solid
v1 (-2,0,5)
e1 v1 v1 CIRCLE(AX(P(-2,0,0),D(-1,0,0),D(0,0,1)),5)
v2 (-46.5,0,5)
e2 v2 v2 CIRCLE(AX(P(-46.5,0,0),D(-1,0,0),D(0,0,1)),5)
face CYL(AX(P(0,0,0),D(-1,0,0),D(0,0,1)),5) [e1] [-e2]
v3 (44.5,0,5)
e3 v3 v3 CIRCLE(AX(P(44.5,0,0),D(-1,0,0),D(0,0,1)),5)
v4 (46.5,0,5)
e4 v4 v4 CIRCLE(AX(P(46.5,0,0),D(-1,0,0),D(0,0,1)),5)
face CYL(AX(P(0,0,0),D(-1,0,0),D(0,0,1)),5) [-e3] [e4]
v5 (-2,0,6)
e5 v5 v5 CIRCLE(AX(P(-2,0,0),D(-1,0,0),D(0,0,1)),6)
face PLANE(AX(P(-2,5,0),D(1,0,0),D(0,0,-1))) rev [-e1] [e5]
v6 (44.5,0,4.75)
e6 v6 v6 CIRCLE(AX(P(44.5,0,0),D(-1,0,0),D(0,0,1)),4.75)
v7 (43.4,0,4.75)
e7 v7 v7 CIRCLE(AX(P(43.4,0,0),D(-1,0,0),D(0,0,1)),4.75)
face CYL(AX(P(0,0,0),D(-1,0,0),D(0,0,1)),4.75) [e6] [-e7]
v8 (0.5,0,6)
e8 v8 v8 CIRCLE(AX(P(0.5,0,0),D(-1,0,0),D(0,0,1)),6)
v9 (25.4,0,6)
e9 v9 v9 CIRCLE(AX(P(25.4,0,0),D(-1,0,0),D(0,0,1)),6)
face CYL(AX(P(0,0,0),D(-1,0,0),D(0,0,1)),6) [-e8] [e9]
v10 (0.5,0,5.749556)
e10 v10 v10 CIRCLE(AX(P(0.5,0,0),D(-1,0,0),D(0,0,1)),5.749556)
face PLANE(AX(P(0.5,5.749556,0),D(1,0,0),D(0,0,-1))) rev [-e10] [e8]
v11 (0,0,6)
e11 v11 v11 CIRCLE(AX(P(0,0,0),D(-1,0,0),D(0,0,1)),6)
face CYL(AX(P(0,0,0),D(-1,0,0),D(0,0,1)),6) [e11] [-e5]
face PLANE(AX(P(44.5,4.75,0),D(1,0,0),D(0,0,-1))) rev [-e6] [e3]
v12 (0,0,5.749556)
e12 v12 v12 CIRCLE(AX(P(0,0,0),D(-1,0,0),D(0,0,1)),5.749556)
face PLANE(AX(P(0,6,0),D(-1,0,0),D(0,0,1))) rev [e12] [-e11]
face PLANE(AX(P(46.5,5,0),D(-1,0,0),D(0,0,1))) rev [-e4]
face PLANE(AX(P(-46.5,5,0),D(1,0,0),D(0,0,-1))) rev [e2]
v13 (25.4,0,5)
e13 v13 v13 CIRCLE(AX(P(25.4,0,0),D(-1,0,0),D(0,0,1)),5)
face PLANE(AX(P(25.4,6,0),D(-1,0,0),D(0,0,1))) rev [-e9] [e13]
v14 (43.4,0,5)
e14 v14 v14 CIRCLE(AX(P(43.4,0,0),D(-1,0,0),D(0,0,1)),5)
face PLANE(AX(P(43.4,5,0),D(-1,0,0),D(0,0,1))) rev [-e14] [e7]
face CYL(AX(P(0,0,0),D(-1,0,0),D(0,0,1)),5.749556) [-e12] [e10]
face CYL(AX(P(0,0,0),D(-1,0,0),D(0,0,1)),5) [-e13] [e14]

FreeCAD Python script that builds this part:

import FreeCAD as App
import Part
import Sketcher
from FreeCAD import Vector
Q = App.Units.Quantity


def add_polygon(sketch, points):
    """Adds a closed chain of lines whose ends are joined by coincident constraints."""
    first, n = sketch.GeometryCount, len(points)
    for a, b in zip(points, points[1:] + points[:1]):
        sketch.addGeometry(Part.LineSegment(App.Vector(*a, 0), App.Vector(*b, 0)), False)
    for i in range(n):
        sketch.addConstraint(Sketcher.Constraint("Coincident", first + i, 2, first + (i + 1) % n, 1))

doc = App.newDocument("Part")
body = doc.addObject("PartDesign::Body", "Body")

# Sketch on XY plane
sketch1 = body.newObject("Sketcher::SketchObject", "Sketch")
sketch1.AttachmentSupport = (doc.getObject("XY_Plane"), [""])
sketch1.MapMode = "FlatFace"
add_polygon(sketch1, [(-2, 6), (-2, 5), (-46.5, 5), (-46.5, 0), (46.5, 0), (46.5, 5), (44.5, 5), (44.5, 4.75), (43.4, 4.75), (43.4, 5), (25.4, 5), (25.4, 6), (0.5, 6), (0.5, 5.75), (0, 5.75), (0, 6)])  # lines 0-15
sketch1.addConstraint(Sketcher.Constraint("Vertical", 0))
sketch1.addConstraint(Sketcher.Constraint("Horizontal", 1))
sketch1.addConstraint(Sketcher.Constraint("Vertical", 2))
sketch1.addConstraint(Sketcher.Constraint("Horizontal", 3))
sketch1.addConstraint(Sketcher.Constraint("Vertical", 4))
sketch1.addConstraint(Sketcher.Constraint("Horizontal", 5))
sketch1.addConstraint(Sketcher.Constraint("Vertical", 6))
sketch1.addConstraint(Sketcher.Constraint("Horizontal", 7))
sketch1.addConstraint(Sketcher.Constraint("Vertical", 8))
sketch1.addConstraint(Sketcher.Constraint("Horizontal", 9))
sketch1.addConstraint(Sketcher.Constraint("Vertical", 10))
sketch1.addConstraint(Sketcher.Constraint("Horizontal", 11))
sketch1.addConstraint(Sketcher.Constraint("Vertical", 12))
sketch1.addConstraint(Sketcher.Constraint("Horizontal", 13))
sketch1.addConstraint(Sketcher.Constraint("Vertical", 14))
sketch1.addConstraint(Sketcher.Constraint("Horizontal", 15))
sketch1.addConstraint(Sketcher.Constraint("Symmetric", 2, 2, 3, 2, -1, 1))
sketch1.addConstraint(Sketcher.Constraint("PointOnObject", 13, 2, -2))
sketch1.addConstraint(Sketcher.Constraint("Horizontal", 1, 2, 4, 2))
sketch1.addConstraint(Sketcher.Constraint("Horizontal", 5, 2, 8, 2))
sketch1.addConstraint(Sketcher.Constraint("Horizontal", 11, 2, 14, 2))
sketch1.addConstraint(Sketcher.Constraint("Equal", 5, 15))
sketch1.addConstraint(Sketcher.Constraint("DistanceX", 3, 1, 3, 2, Q("93 mm")))
sketch1.addConstraint(Sketcher.Constraint("DistanceX", 5, 2, 5, 1, Q("2 mm")))
sketch1.addConstraint(Sketcher.Constraint("DistanceX", 9, 2, 9, 1, Q("18 mm")))
sketch1.addConstraint(Sketcher.Constraint("DistanceY", 0, 2, 0, 1, Q("1 mm")))
sketch1.addConstraint(Sketcher.Constraint("DistanceY", 2, 2, 2, 1, Q("5 mm")))
sketch1.addConstraint(Sketcher.Constraint("DistanceX", 7, 2, 7, 1, Q("1.1 mm")))
sketch1.addConstraint(Sketcher.Constraint("DistanceX", 11, 2, 11, 1, Q("24.9 mm")))
sketch1.addConstraint(Sketcher.Constraint("DistanceY", 6, 2, 6, 1, Q("0.25 mm")))
sketch1.addConstraint(Sketcher.Constraint("DistanceY", 12, 2, 12, 1, Q("0.250444 mm")))
revolution = body.newObject("PartDesign::Revolution", "Revolution")
revolution.Profile = sketch1
revolution.ReferenceAxis = (sketch1, ["H_Axis"])
revolution.Angle = 360

doc.recompute()
